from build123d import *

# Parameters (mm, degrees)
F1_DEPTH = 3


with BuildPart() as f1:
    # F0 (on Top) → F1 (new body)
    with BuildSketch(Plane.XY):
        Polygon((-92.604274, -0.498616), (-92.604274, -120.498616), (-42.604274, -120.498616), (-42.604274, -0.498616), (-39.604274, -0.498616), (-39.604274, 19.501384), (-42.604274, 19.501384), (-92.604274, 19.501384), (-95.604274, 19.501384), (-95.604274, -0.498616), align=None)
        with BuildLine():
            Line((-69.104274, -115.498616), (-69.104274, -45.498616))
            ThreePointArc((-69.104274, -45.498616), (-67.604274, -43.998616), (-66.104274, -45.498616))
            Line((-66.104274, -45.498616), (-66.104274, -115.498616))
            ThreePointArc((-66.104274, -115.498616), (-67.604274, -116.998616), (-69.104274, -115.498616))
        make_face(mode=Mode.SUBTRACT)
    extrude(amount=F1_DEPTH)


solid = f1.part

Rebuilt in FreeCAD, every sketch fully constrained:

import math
import FreeCAD as App
import Part
import Sketcher
from FreeCAD import Vector

doc = App.newDocument("Part")
body = doc.addObject("PartDesign::Body", "Body")

# Sketch on XY plane
sketch1 = body.newObject("Sketcher::SketchObject", "Sketch")
sketch1.AttachmentSupport = (doc.getObject("XY_Plane"), [""])
sketch1.MapMode = "FlatFace"
sketch1.addGeometry(Part.LineSegment(Vector(-92.604274, -0.498616, 0), Vector(-92.604274, -120.498616, 0)), False)
sketch1.addGeometry(Part.LineSegment(Vector(-92.604274, -120.498616, 0), Vector(-42.604274, -120.498616, 0)), False)
sketch1.addGeometry(Part.LineSegment(Vector(-42.604274, -120.498616, 0), Vector(-42.604274, -0.498616, 0)), False)
sketch1.addGeometry(Part.LineSegment(Vector(-42.604274, -0.498616, 0), Vector(-39.604274, -0.498616, 0)), False)
sketch1.addGeometry(Part.LineSegment(Vector(-39.604274, -0.498616, 0), Vector(-39.604274, 19.501384, 0)), False)
sketch1.addGeometry(Part.LineSegment(Vector(-39.604274, 19.501384, 0), Vector(-95.604274, 19.501384, 0)), False)
sketch1.addGeometry(Part.LineSegment(Vector(-95.604274, 19.501384, 0), Vector(-95.604274, -0.498616, 0)), False)
sketch1.addGeometry(Part.LineSegment(Vector(-95.604274, -0.498616, 0), Vector(-92.604274, -0.498616, 0)), False)
sketch1.addGeometry(Part.ArcOfCircle(Part.Circle(Vector(-67.604274, -115.498616, 0), Vector(0, 0, 1), 1.5), math.radians(180), math.radians(360)), False)
sketch1.addGeometry(Part.LineSegment(Vector(-69.104274, -115.498616, 0), Vector(-69.104274, -45.498616, 0)), False)
sketch1.addGeometry(Part.ArcOfCircle(Part.Circle(Vector(-67.604274, -45.498616, 0), Vector(0, 0, 1), 1.5), math.radians(0), math.radians(180)), False)
sketch1.addGeometry(Part.LineSegment(Vector(-66.104274, -45.498616, 0), Vector(-66.104274, -115.498616, 0)), False)
sketch1.addConstraint(Sketcher.Constraint("Coincident", 0, 2, 1, 1))
sketch1.addConstraint(Sketcher.Constraint("Coincident", 1, 2, 2, 1))
sketch1.addConstraint(Sketcher.Constraint("Coincident", 2, 2, 3, 1))
sketch1.addConstraint(Sketcher.Constraint("Coincident", 3, 2, 4, 1))
sketch1.addConstraint(Sketcher.Constraint("Coincident", 4, 2, 5, 1))
sketch1.addConstraint(Sketcher.Constraint("Coincident", 5, 2, 6, 1))
sketch1.addConstraint(Sketcher.Constraint("Coincident", 6, 2, 7, 1))
sketch1.addConstraint(Sketcher.Constraint("Coincident", 7, 2, 0, 1))
sketch1.addConstraint(Sketcher.Constraint("Tangent", 8, 1, 9, 1))
sketch1.addConstraint(Sketcher.Constraint("Tangent", 9, 2, 10, 2))
sketch1.addConstraint(Sketcher.Constraint("Tangent", 10, 1, 11, 1))
sketch1.addConstraint(Sketcher.Constraint("Tangent", 11, 2, 8, 2))
sketch1.addConstraint(Sketcher.Constraint("Vertical", 0))
sketch1.addConstraint(Sketcher.Constraint("Horizontal", 1))
sketch1.addConstraint(Sketcher.Constraint("Vertical", 2))
sketch1.addConstraint(Sketcher.Constraint("Horizontal", 3))
sketch1.addConstraint(Sketcher.Constraint("Vertical", 4))
sketch1.addConstraint(Sketcher.Constraint("Horizontal", 5))
sketch1.addConstraint(Sketcher.Constraint("Vertical", 6))
sketch1.addConstraint(Sketcher.Constraint("Horizontal", 7))
sketch1.addConstraint(Sketcher.Constraint("Vertical", 9))
sketch1.addConstraint(Sketcher.Constraint("Vertical", 11))
sketch1.addConstraint(Sketcher.Constraint("Horizontal", 3, 2, 6, 2))
sketch1.addConstraint(Sketcher.Constraint("Equal", 3, 7))
sketch1.addConstraint(Sketcher.Constraint("Radius", 8, 1.5))
sketch1.addConstraint(Sketcher.Constraint("DistanceX", 1, 1, 1, 2, 50.0))
sketch1.addConstraint(Sketcher.Constraint("DistanceX", 3, 1, 3, 2, 3.0))
sketch1.addConstraint(Sketcher.Constraint("DistanceY", 0, 2, 0, 1, 120.0))
sketch1.addConstraint(Sketcher.Constraint("DistanceY", 4, 1, 4, 2, 20.0))
sketch1.addConstraint(Sketcher.Constraint("DistanceY", 9, 1, 9, 2, 70.0))
sketch1.addConstraint(Sketcher.Constraint("DistanceX", 0, 2, 8, 3, 25.0))
sketch1.addConstraint(Sketcher.Constraint("DistanceY", 0, 2, 8, 3, 5.0))
sketch1.addConstraint(Sketcher.Constraint("DistanceX", 8, 3, -1, 1, 67.604274))
sketch1.addConstraint(Sketcher.Constraint("DistanceY", 8, 3, -1, 1, 115.498616))
pad1 = body.newObject("PartDesign::Pad", "Pad")
pad1.Profile = sketch1
pad1.Length = 3

doc.recompute()
